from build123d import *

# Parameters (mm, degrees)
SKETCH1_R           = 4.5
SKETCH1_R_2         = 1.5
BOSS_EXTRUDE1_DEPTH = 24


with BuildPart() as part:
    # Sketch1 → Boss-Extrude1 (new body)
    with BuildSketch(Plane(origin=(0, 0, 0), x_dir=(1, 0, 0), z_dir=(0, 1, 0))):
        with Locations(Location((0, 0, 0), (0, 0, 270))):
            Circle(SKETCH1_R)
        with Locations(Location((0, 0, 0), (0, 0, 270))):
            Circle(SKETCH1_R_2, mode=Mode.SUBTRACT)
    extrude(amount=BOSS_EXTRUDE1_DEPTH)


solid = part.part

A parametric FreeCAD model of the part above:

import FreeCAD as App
import Part
import Sketcher
from FreeCAD import Vector

doc = App.newDocument("Part")
body = doc.addObject("PartDesign::Body", "Body")

# Sketch on XZ plane
sketch1 = body.newObject("Sketcher::SketchObject", "Sketch")
sketch1.AttachmentSupport = (doc.getObject("XZ_Plane"), [""])
sketch1.MapMode = "FlatFace"
sketch1.addGeometry([
    Part.Circle(Vector(0, 0, 0), Vector(0, 0, 1), 4.5),
    Part.Circle(Vector(0, 0, 0), Vector(0, 0, 1), 1.5),
], False)
sketch1.addConstraint([
    Sketcher.Constraint("Coincident", 0, 3, -1, 1),
    Sketcher.Constraint("Coincident", 1, 3, -1, 1),
    Sketcher.Constraint("Diameter", 0, 9.0),
    Sketcher.Constraint("Diameter", 1, 3.0),
])
pad1 = body.newObject("PartDesign::Pad", "Pad")
pad1.Profile = sketch1
pad1.Length = 24
pad1.Reversed = True

doc.recompute()
